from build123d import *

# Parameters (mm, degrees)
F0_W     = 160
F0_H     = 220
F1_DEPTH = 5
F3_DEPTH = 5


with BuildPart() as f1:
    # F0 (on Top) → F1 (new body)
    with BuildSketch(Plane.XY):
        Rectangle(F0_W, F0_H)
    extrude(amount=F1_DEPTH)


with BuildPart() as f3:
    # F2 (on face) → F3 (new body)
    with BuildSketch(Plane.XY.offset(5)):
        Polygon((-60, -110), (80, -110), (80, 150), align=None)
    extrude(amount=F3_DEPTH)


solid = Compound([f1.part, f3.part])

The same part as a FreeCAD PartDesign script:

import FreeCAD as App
import Part
import Sketcher
Q = App.Units.Quantity

doc = App.newDocument("Part")
body = doc.addObject("PartDesign::Body", "Body")

# Sketch on XY plane
sketch1 = doc.addObject("Sketcher::SketchObject", "Sketch")
body.addObject(sketch1)
sketch1.AttachmentSupport = (doc.XY_Plane, [""])
sketch1.MapMode = "FlatFace"
sketch1.addGeometry(Part.LineSegment(App.Vector(-80, 110, 0), App.Vector(-80, -110, 0)), False)
sketch1.addGeometry(Part.LineSegment(App.Vector(-80, -110, 0), App.Vector(80, -110, 0)), False)
sketch1.addGeometry(Part.LineSegment(App.Vector(80, -110, 0), App.Vector(80, 110, 0)), False)
sketch1.addGeometry(Part.LineSegment(App.Vector(80, 110, 0), App.Vector(-80, 110, 0)), False)
sketch1.addConstraint(Sketcher.Constraint("Coincident", 0, 2, 1, 1))
sketch1.addConstraint(Sketcher.Constraint("Coincident", 1, 2, 2, 1))
sketch1.addConstraint(Sketcher.Constraint("Coincident", 2, 2, 3, 1))
sketch1.addConstraint(Sketcher.Constraint("Coincident", 3, 2, 0, 1))
sketch1.addConstraint(Sketcher.Constraint("Vertical", 0))
sketch1.addConstraint(Sketcher.Constraint("Horizontal", 1))
sketch1.addConstraint(Sketcher.Constraint("Vertical", 2))
sketch1.addConstraint(Sketcher.Constraint("Horizontal", 3))
sketch1.addConstraint(Sketcher.Constraint("Symmetric", 0, 2, 2, 2, -1, 1))
sketch1.addConstraint(Sketcher.Constraint("DistanceX", 1, 1, 1, 2, Q("160 mm")))
sketch1.addConstraint(Sketcher.Constraint("DistanceY", 0, 2, 0, 1, Q("220 mm")))
pad1 = doc.addObject("PartDesign::Pad", "Pad")
body.addObject(pad1)
pad1.Profile = sketch1
pad1.Length = 5
body2 = doc.addObject("PartDesign::Body", "Body001")

# Sketch on XY plane
sketch2 = doc.addObject("Sketcher::SketchObject", "Sketch001")
body2.addObject(sketch2)
sketch2.AttachmentSupport = (doc.getObject("XY_Plane001"), [""])
sketch2.MapMode = "FlatFace"
sketch2.AttachmentOffset = App.Placement(App.Vector(0, 0, 5), App.Rotation())
sketch2.addGeometry(Part.LineSegment(App.Vector(-60, -110, 0), App.Vector(80, -110, 0)), False)
sketch2.addGeometry(Part.LineSegment(App.Vector(80, -110, 0), App.Vector(80, 150, 0)), False)
sketch2.addGeometry(Part.LineSegment(App.Vector(80, 150, 0), App.Vector(-60, -110, 0)), False)
sketch2.addConstraint(Sketcher.Constraint("Coincident", 0, 2, 1, 1))
sketch2.addConstraint(Sketcher.Constraint("Coincident", 1, 2, 2, 1))
sketch2.addConstraint(Sketcher.Constraint("Coincident", 2, 2, 0, 1))
sketch2.addConstraint(Sketcher.Constraint("Horizontal", 0))
sketch2.addConstraint(Sketcher.Constraint("Vertical", 1))
sketch2.addConstraint(Sketcher.Constraint("DistanceX", 0, 1, 0, 2, Q("140 mm")))
sketch2.addConstraint(Sketcher.Constraint("DistanceY", 1, 1, 1, 2, Q("260 mm")))
sketch2.addConstraint(Sketcher.Constraint("DistanceX", -1, 1, 0, 2, Q("80 mm")))
sketch2.addConstraint(Sketcher.Constraint("DistanceY", 0, 2, -1, 1, Q("110 mm")))
pad2 = doc.addObject("PartDesign::Pad", "Pad001")
body2.addObject(pad2)
pad2.Profile = sketch2
pad2.Length = 5

doc.recompute()
